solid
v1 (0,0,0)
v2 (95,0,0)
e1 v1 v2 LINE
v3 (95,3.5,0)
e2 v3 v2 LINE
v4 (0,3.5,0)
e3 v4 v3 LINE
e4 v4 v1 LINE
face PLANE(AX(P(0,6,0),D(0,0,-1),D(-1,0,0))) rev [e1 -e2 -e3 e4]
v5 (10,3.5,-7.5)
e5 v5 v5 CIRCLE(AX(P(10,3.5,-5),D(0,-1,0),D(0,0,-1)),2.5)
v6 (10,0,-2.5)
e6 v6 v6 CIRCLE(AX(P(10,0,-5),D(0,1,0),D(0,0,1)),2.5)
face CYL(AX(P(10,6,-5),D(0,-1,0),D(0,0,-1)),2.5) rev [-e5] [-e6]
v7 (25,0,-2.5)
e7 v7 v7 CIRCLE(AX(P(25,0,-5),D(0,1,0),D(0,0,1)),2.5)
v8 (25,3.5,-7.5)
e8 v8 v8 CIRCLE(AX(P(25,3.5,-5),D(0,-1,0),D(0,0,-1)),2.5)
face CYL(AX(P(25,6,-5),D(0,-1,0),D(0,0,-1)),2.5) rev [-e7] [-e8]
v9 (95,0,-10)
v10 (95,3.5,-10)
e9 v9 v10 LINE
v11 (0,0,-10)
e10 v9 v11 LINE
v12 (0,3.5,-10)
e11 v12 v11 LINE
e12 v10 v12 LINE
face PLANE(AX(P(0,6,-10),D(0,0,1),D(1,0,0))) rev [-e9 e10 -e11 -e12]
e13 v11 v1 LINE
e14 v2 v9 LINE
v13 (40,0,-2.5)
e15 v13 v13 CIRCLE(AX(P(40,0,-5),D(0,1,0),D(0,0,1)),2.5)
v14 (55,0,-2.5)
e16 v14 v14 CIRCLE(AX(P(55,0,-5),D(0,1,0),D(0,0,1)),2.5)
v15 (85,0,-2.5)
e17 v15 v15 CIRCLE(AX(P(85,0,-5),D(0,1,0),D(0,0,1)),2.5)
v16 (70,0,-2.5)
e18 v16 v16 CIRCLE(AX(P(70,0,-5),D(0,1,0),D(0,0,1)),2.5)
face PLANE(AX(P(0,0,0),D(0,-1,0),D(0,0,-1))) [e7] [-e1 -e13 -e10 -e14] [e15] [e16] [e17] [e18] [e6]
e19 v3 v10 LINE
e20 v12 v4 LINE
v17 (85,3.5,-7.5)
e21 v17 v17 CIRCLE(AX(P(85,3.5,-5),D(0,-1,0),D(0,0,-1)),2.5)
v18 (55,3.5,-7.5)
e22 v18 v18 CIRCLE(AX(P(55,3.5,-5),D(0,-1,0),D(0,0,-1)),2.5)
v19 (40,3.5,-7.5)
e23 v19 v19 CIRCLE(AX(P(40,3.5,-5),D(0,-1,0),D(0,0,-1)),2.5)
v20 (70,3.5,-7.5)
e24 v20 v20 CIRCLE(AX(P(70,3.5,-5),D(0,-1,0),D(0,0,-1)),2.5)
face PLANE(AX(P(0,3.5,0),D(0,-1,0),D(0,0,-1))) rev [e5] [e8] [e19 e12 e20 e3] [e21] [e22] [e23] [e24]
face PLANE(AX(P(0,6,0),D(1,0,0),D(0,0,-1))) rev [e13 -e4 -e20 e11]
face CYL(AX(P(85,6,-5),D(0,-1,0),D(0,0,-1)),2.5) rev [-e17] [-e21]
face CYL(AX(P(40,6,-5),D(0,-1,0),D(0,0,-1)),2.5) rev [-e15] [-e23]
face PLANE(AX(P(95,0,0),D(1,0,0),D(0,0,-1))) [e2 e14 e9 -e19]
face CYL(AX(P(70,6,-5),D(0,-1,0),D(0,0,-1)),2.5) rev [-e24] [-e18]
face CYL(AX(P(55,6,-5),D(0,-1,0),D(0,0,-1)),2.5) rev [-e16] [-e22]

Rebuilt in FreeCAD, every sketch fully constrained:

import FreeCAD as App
import Part
import Sketcher
from FreeCAD import Vector

doc = App.newDocument("Part")
params = doc.addObject("Spreadsheet::Sheet", "Params")
for row, (alias, value) in enumerate([
    ("sketch1_diameter", "5 mm"),
    ("sketch1_width", "150 mm"),
    ("sketch1_height", "10 mm"),
    ("pad1_length", "6 mm"),
    ("sketch2_width", "6 mm"),
    ("sketch2_height", "10 mm"),
    ("pocket1_length", "55 mm"),
    ("sketch3_width", "95 mm"),
    ("sketch3_height", "10 mm"),
    ("pocket2_length", "2.5 mm"),
], start=1):
    params.set(f"A{row}", alias)
    params.set(f"B{row}", "=" + value)
    params.setAlias(f"B{row}", alias)

body = doc.addObject("PartDesign::Body", "Body")

sketch1 = body.newObject("Sketcher::SketchObject", "Sketch")
sketch1.AttachmentSupport = (doc.getObject("XZ_Plane"), [""])
sketch1.MapMode = "FlatFace"
sketch1.addGeometry(Part.LineSegment(Vector(0, -10, 0), Vector(0, 0, 0)), False)
sketch1.addGeometry(Part.LineSegment(Vector(0, 0, 0), Vector(150, 0, 0)), False)
sketch1.addGeometry(Part.LineSegment(Vector(150, 0, 0), Vector(150, -10, 0)), False)
sketch1.addGeometry(Part.LineSegment(Vector(150, -10, 0), Vector(0, -10, 0)), False)
sketch1.addGeometry(Part.Circle(Vector(10, -5, 0), Vector(0, 0, 1), 2.5), False)
sketch1.addGeometry(Part.Circle(Vector(25, -5, 0), Vector(0, 0, 1), 2.5), False)
sketch1.addGeometry(Part.Circle(Vector(40, -5, 0), Vector(0, 0, 1), 2.5), False)
sketch1.addGeometry(Part.Circle(Vector(55, -5, 0), Vector(0, 0, 1), 2.5), False)
sketch1.addGeometry(Part.Circle(Vector(70, -5, 0), Vector(0, 0, 1), 2.5), False)
sketch1.addGeometry(Part.Circle(Vector(85, -5, 0), Vector(0, 0, 1), 2.5), False)
sketch1.addGeometry(Part.Circle(Vector(100, -5, 0), Vector(0, 0, 1), 2.5), False)
sketch1.addGeometry(Part.Circle(Vector(115, -5, 0), Vector(0, 0, 1), 2.5), False)
sketch1.addGeometry(Part.Circle(Vector(130, -5, 0), Vector(0, 0, 1), 2.5), False)
sketch1.addGeometry(Part.Circle(Vector(145, -5, 0), Vector(0, 0, 1), 2.5), False)
sketch1.addConstraint(Sketcher.Constraint("Coincident", 0, 2, 1, 1))
sketch1.addConstraint(Sketcher.Constraint("Coincident", 1, 2, 2, 1))
sketch1.addConstraint(Sketcher.Constraint("Coincident", 2, 2, 3, 1))
sketch1.addConstraint(Sketcher.Constraint("Coincident", 3, 2, 0, 1))
sketch1.addConstraint(Sketcher.Constraint("Vertical", 0))
sketch1.addConstraint(Sketcher.Constraint("Horizontal", 1))
sketch1.addConstraint(Sketcher.Constraint("Vertical", 2))
sketch1.addConstraint(Sketcher.Constraint("Horizontal", 3))
sketch1.addConstraint(Sketcher.Constraint("Coincident", 0, 2, -1, 1))
sketch1.addConstraint(Sketcher.Constraint("Equal", 4, 5))
sketch1.addConstraint(Sketcher.Constraint("Equal", 5, 6))
sketch1.addConstraint(Sketcher.Constraint("Equal", 6, 7))
sketch1.addConstraint(Sketcher.Constraint("Equal", 7, 8))
sketch1.addConstraint(Sketcher.Constraint("Equal", 8, 9))
sketch1.addConstraint(Sketcher.Constraint("Equal", 9, 10))
sketch1.addConstraint(Sketcher.Constraint("Equal", 10, 11))
sketch1.addConstraint(Sketcher.Constraint("Equal", 11, 12))
sketch1.addConstraint(Sketcher.Constraint("Equal", 12, 13))
sketch1.addConstraint(Sketcher.Constraint("Horizontal", 4, 3, 5, 3))
sketch1.addConstraint(Sketcher.Constraint("Horizontal", 5, 3, 6, 3))
sketch1.addConstraint(Sketcher.Constraint("Horizontal", 6, 3, 7, 3))
sketch1.addConstraint(Sketcher.Constraint("Horizontal", 7, 3, 8, 3))
sketch1.addConstraint(Sketcher.Constraint("Horizontal", 8, 3, 9, 3))
sketch1.addConstraint(Sketcher.Constraint("Horizontal", 9, 3, 10, 3))
sketch1.addConstraint(Sketcher.Constraint("Horizontal", 10, 3, 11, 3))
sketch1.addConstraint(Sketcher.Constraint("Horizontal", 11, 3, 12, 3))
sketch1.addConstraint(Sketcher.Constraint("Horizontal", 12, 3, 13, 3))
sketch1.addConstraint(Sketcher.Constraint("Diameter", 4, 5.0))
sketch1.addConstraint(Sketcher.Constraint("DistanceX", 1, 1, 1, 2, 150.0))
sketch1.addConstraint(Sketcher.Constraint("DistanceY", 0, 1, 0, 2, 10.0))
sketch1.addConstraint(Sketcher.Constraint("DistanceX", -1, 1, 4, 3, 10.0))
sketch1.addConstraint(Sketcher.Constraint("DistanceY", 4, 3, -1, 1, 5.0))
sketch1.addConstraint(Sketcher.Constraint("DistanceX", -1, 1, 5, 3, 25.0))
sketch1.addConstraint(Sketcher.Constraint("DistanceX", -1, 1, 6, 3, 40.0))
sketch1.addConstraint(Sketcher.Constraint("DistanceX", -1, 1, 7, 3, 55.0))
sketch1.addConstraint(Sketcher.Constraint("DistanceX", -1, 1, 8, 3, 70.0))
sketch1.addConstraint(Sketcher.Constraint("DistanceX", -1, 1, 9, 3, 85.0))
sketch1.addConstraint(Sketcher.Constraint("DistanceX", -1, 1, 10, 3, 100.0))
sketch1.addConstraint(Sketcher.Constraint("DistanceX", -1, 1, 11, 3, 115.0))
sketch1.addConstraint(Sketcher.Constraint("DistanceX", -1, 1, 12, 3, 130.0))
sketch1.addConstraint(Sketcher.Constraint("DistanceX", -1, 1, 13, 3, 145.0))
sketch1.setExpression("Constraints[27]", "Params.sketch1_diameter")
sketch1.setExpression("Constraints[28]", "Params.sketch1_width")
sketch1.setExpression("Constraints[29]", "Params.sketch1_height")
pad1 = body.newObject("PartDesign::Pad", "Pad")
pad1.Profile = sketch1
pad1.setExpression("Length", "Params.pad1_length")
pad1.Reversed = True

sketch2 = body.newObject("Sketcher::SketchObject", "Sketch001")
sketch2.AttachmentSupport = (doc.getObject("YZ_Plane"), [""])
sketch2.MapMode = "FlatFace"
sketch2.AttachmentOffset = App.Placement(Vector(0, 0, 150), App.Rotation())
sketch2.addGeometry(Part.LineSegment(Vector(6, 0, 0), Vector(0, 0, 0)), False)
sketch2.addGeometry(Part.LineSegment(Vector(0, 0, 0), Vector(0, -10, 0)), False)
sketch2.addGeometry(Part.LineSegment(Vector(0, -10, 0), Vector(6, -10, 0)), False)
sketch2.addGeometry(Part.LineSegment(Vector(6, -10, 0), Vector(6, 0, 0)), False)
sketch2.addConstraint(Sketcher.Constraint("Coincident", 0, 2, 1, 1))
sketch2.addConstraint(Sketcher.Constraint("Coincident", 1, 2, 2, 1))
sketch2.addConstraint(Sketcher.Constraint("Coincident", 2, 2, 3, 1))
sketch2.addConstraint(Sketcher.Constraint("Coincident", 3, 2, 0, 1))
sketch2.addConstraint(Sketcher.Constraint("Horizontal", 0))
sketch2.addConstraint(Sketcher.Constraint("Vertical", 1))
sketch2.addConstraint(Sketcher.Constraint("Horizontal", 2))
sketch2.addConstraint(Sketcher.Constraint("Vertical", 3))
sketch2.addConstraint(Sketcher.Constraint("Coincident", 0, 2, -1, 1))
sketch2.addConstraint(Sketcher.Constraint("DistanceX", 0, 2, 0, 1, 6.0))
sketch2.addConstraint(Sketcher.Constraint("DistanceY", 1, 2, 1, 1, 10.0))
sketch2.setExpression("Constraints[9]", "Params.sketch2_width")
sketch2.setExpression("Constraints[10]", "Params.sketch2_height")
pocket1 = body.newObject("PartDesign::Pocket", "Pocket")
pocket1.Profile = sketch2
pocket1.setExpression("Length", "Params.pocket1_length")

sketch3 = body.newObject("Sketcher::SketchObject", "Sketch002")
sketch3.AttachmentSupport = (doc.getObject("XZ_Plane"), [""])
sketch3.MapMode = "FlatFace"
sketch3.AttachmentOffset = App.Placement(Vector(0, 0, -6), App.Rotation())
sketch3.addGeometry(Part.LineSegment(Vector(0, -10, 0), Vector(0, 0, 0)), False)
sketch3.addGeometry(Part.LineSegment(Vector(0, 0, 0), Vector(95, 0, 0)), False)
sketch3.addGeometry(Part.LineSegment(Vector(95, 0, 0), Vector(95, -10, 0)), False)
sketch3.addGeometry(Part.LineSegment(Vector(95, -10, 0), Vector(0, -10, 0)), False)
sketch3.addConstraint(Sketcher.Constraint("Coincident", 0, 2, 1, 1))
sketch3.addConstraint(Sketcher.Constraint("Coincident", 1, 2, 2, 1))
sketch3.addConstraint(Sketcher.Constraint("Coincident", 2, 2, 3, 1))
sketch3.addConstraint(Sketcher.Constraint("Coincident", 3, 2, 0, 1))
sketch3.addConstraint(Sketcher.Constraint("Vertical", 0))
sketch3.addConstraint(Sketcher.Constraint("Horizontal", 1))
sketch3.addConstraint(Sketcher.Constraint("Vertical", 2))
sketch3.addConstraint(Sketcher.Constraint("Horizontal", 3))
sketch3.addConstraint(Sketcher.Constraint("Coincident", 0, 2, -1, 1))
sketch3.addConstraint(Sketcher.Constraint("DistanceX", 1, 1, 1, 2, 95.0))
sketch3.addConstraint(Sketcher.Constraint("DistanceY", 0, 1, 0, 2, 10.0))
sketch3.setExpression("Constraints[9]", "Params.sketch3_width")
sketch3.setExpression("Constraints[10]", "Params.sketch3_height")
pocket2 = body.newObject("PartDesign::Pocket", "Pocket001")
pocket2.Profile = sketch3
pocket2.setExpression("Length", "Params.pocket2_length")
pocket2.Reversed = True

doc.recompute()
